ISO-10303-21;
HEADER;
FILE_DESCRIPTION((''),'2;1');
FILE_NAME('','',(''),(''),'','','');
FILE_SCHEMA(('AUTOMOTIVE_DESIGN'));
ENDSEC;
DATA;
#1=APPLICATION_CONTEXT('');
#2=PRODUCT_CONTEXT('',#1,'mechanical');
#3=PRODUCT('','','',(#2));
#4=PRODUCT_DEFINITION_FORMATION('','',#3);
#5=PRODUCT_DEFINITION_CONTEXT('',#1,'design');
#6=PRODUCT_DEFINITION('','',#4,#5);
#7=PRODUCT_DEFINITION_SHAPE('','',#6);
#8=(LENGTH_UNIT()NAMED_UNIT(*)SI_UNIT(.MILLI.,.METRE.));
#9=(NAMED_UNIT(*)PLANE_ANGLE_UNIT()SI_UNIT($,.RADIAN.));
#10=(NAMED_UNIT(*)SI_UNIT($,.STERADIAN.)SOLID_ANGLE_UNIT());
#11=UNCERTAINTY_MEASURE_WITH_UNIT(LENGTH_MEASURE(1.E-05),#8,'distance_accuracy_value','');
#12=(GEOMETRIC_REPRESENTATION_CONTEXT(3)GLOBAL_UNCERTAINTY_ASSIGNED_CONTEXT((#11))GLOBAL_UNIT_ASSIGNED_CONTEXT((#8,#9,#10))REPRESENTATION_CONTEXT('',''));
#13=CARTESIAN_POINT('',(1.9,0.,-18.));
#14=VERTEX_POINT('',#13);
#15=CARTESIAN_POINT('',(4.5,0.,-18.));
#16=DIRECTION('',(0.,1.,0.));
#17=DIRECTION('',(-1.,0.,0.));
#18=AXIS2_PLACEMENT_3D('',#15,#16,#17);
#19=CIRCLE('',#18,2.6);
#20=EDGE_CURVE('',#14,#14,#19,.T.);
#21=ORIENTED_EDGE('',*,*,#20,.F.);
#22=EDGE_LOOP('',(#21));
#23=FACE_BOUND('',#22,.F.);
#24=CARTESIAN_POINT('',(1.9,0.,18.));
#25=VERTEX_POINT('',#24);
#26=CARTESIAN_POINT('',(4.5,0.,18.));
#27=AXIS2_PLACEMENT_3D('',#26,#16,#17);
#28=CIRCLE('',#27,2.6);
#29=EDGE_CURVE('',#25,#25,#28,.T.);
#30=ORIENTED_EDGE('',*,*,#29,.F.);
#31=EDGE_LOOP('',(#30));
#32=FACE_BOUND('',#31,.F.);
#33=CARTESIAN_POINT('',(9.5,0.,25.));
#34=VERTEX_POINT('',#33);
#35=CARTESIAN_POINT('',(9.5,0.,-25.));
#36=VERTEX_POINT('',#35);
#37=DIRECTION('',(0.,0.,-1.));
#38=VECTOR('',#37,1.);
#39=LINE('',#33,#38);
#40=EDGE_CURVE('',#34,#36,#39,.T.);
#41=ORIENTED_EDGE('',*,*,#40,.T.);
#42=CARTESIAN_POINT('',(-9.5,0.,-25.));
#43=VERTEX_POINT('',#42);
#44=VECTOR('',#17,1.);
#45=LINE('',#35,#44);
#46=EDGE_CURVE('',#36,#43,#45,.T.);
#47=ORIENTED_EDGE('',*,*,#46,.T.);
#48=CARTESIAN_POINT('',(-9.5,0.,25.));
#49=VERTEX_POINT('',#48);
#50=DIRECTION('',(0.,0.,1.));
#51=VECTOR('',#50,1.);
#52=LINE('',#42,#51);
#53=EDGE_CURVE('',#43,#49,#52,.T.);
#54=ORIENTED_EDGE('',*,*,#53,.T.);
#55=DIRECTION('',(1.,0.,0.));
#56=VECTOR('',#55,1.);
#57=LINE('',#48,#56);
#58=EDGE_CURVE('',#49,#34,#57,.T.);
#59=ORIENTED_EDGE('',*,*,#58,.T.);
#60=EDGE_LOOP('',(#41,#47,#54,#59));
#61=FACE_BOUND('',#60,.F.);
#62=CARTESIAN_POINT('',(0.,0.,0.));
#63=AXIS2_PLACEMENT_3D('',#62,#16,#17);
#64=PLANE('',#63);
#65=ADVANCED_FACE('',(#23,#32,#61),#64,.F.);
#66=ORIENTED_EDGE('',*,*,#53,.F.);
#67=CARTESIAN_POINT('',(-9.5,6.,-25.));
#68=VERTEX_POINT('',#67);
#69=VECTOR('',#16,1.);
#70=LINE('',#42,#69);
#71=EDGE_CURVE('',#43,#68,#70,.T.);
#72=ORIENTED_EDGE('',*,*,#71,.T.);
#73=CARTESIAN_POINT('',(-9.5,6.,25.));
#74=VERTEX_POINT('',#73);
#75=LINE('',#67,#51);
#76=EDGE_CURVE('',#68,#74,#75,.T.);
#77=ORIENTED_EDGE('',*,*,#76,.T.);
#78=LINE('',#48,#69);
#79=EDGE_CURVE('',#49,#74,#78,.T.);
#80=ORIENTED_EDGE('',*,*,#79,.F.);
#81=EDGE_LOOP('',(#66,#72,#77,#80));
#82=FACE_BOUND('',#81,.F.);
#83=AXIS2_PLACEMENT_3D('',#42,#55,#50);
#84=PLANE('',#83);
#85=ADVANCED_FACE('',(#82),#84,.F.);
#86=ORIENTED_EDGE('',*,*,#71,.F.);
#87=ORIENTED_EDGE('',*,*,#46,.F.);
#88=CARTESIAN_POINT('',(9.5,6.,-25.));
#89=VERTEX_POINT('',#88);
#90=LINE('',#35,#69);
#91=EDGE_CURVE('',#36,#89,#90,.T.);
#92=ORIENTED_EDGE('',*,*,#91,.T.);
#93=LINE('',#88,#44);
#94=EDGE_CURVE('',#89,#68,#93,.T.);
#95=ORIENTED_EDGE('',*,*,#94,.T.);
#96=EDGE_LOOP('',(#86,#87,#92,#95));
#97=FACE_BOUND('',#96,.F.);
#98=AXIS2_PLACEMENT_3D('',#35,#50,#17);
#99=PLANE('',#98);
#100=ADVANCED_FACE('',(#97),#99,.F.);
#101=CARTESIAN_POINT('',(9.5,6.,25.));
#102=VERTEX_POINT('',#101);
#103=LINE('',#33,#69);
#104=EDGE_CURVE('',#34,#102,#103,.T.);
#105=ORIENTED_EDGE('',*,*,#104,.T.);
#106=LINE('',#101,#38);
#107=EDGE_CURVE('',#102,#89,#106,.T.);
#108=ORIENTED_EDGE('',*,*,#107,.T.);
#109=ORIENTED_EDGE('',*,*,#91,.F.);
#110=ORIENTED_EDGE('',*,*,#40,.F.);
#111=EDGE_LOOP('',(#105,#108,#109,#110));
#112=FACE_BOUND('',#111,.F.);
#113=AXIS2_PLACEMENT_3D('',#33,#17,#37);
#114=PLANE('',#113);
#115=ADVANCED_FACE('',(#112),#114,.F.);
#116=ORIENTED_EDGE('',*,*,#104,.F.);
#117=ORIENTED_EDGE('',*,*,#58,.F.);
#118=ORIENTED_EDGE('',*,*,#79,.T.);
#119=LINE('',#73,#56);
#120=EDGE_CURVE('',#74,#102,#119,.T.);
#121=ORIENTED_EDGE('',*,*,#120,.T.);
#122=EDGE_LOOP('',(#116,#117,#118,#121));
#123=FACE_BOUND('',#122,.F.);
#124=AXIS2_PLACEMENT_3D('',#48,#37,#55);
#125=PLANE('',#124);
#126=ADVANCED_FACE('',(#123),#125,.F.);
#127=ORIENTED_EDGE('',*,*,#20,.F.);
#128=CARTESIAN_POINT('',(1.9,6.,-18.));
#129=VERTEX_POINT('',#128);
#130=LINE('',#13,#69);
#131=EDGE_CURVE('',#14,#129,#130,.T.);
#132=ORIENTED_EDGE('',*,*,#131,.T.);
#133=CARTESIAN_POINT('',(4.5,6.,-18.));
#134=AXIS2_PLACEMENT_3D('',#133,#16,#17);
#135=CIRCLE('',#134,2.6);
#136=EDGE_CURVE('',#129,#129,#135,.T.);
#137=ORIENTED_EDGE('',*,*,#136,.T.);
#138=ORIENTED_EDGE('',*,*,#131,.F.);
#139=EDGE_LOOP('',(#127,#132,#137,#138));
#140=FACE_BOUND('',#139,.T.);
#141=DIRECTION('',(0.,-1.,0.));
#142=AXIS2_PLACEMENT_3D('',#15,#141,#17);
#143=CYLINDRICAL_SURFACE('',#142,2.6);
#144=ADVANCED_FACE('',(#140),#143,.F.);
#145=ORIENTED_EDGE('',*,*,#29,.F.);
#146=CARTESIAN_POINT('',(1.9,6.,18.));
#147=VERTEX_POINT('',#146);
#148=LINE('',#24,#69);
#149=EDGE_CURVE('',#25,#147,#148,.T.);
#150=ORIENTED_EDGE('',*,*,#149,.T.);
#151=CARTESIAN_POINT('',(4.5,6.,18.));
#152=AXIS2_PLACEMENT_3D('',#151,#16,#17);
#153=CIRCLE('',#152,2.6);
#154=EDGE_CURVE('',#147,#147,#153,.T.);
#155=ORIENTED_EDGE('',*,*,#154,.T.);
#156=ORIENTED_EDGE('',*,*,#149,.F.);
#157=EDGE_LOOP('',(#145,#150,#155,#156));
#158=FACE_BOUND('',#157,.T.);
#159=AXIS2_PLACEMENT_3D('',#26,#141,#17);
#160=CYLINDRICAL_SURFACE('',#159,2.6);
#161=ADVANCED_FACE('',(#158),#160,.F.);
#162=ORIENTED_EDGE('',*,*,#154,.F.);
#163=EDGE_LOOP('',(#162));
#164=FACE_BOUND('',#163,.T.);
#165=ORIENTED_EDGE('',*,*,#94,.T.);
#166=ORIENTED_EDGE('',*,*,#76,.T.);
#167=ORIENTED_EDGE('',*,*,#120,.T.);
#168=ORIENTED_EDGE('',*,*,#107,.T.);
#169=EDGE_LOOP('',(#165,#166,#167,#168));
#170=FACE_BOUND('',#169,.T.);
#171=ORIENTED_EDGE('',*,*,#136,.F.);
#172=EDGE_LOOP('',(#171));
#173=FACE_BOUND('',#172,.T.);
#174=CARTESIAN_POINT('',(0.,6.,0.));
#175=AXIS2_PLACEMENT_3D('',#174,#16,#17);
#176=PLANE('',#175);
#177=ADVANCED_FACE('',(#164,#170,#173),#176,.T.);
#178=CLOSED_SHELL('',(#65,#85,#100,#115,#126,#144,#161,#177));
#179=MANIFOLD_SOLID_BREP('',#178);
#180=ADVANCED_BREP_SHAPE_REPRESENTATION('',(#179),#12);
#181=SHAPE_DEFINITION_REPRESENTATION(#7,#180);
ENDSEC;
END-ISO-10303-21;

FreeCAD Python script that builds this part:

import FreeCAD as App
import Part
import Sketcher
from FreeCAD import Vector

doc = App.newDocument("Part")
body = doc.addObject("PartDesign::Body", "Body")

# Sketch on XZ plane
sketch1 = body.newObject("Sketcher::SketchObject", "Sketch")
sketch1.AttachmentSupport = (doc.getObject("XZ_Plane"), [""])
sketch1.MapMode = "FlatFace"
sketch1.addGeometry([
    Part.LineSegment(Vector(-9.5, -25, 0), Vector(-9.5, 25, 0)),  # 0
    Part.LineSegment(Vector(-9.5, 25, 0), Vector(9.5, 25, 0)),  # 1
    Part.LineSegment(Vector(9.5, 25, 0), Vector(9.5, -25, 0)),  # 2
    Part.LineSegment(Vector(9.5, -25, 0), Vector(-9.5, -25, 0)),  # 3
    Part.Circle(Vector(4.5, -18, 0), Vector(0, 0, 1), 2.6),  # 4
    Part.Circle(Vector(4.5, 18, 0), Vector(0, 0, 1), 2.6),  # 5
], False)
sketch1.addConstraint([
    Sketcher.Constraint("Coincident", 0, 2, 1, 1),
    Sketcher.Constraint("Coincident", 1, 2, 2, 1),
    Sketcher.Constraint("Coincident", 2, 2, 3, 1),
    Sketcher.Constraint("Coincident", 3, 2, 0, 1),
    Sketcher.Constraint("Vertical", 0),
    Sketcher.Constraint("Horizontal", 1),
    Sketcher.Constraint("Vertical", 2),
    Sketcher.Constraint("Horizontal", 3),
    Sketcher.Constraint("Equal", 4, 5),
    Sketcher.Constraint("Symmetric", 0, 2, 2, 2, -1, 1),
    Sketcher.Constraint("Symmetric", 4, 3, 5, 3, -1),
    Sketcher.Constraint("Diameter", 4, 5.2),
    Sketcher.Constraint("DistanceX", 1, 1, 1, 2, 19.0),
    Sketcher.Constraint("DistanceY", 0, 1, 0, 2, 50.0),
    Sketcher.Constraint("DistanceY", 4, 3, -1, 1, 18.0),
    Sketcher.Constraint("DistanceX", 5, 3, 1, 2, 5.0),
])
pad1 = body.newObject("PartDesign::Pad", "Pad")
pad1.Profile = sketch1
pad1.Length = 6
pad1.Reversed = True

doc.recompute()
